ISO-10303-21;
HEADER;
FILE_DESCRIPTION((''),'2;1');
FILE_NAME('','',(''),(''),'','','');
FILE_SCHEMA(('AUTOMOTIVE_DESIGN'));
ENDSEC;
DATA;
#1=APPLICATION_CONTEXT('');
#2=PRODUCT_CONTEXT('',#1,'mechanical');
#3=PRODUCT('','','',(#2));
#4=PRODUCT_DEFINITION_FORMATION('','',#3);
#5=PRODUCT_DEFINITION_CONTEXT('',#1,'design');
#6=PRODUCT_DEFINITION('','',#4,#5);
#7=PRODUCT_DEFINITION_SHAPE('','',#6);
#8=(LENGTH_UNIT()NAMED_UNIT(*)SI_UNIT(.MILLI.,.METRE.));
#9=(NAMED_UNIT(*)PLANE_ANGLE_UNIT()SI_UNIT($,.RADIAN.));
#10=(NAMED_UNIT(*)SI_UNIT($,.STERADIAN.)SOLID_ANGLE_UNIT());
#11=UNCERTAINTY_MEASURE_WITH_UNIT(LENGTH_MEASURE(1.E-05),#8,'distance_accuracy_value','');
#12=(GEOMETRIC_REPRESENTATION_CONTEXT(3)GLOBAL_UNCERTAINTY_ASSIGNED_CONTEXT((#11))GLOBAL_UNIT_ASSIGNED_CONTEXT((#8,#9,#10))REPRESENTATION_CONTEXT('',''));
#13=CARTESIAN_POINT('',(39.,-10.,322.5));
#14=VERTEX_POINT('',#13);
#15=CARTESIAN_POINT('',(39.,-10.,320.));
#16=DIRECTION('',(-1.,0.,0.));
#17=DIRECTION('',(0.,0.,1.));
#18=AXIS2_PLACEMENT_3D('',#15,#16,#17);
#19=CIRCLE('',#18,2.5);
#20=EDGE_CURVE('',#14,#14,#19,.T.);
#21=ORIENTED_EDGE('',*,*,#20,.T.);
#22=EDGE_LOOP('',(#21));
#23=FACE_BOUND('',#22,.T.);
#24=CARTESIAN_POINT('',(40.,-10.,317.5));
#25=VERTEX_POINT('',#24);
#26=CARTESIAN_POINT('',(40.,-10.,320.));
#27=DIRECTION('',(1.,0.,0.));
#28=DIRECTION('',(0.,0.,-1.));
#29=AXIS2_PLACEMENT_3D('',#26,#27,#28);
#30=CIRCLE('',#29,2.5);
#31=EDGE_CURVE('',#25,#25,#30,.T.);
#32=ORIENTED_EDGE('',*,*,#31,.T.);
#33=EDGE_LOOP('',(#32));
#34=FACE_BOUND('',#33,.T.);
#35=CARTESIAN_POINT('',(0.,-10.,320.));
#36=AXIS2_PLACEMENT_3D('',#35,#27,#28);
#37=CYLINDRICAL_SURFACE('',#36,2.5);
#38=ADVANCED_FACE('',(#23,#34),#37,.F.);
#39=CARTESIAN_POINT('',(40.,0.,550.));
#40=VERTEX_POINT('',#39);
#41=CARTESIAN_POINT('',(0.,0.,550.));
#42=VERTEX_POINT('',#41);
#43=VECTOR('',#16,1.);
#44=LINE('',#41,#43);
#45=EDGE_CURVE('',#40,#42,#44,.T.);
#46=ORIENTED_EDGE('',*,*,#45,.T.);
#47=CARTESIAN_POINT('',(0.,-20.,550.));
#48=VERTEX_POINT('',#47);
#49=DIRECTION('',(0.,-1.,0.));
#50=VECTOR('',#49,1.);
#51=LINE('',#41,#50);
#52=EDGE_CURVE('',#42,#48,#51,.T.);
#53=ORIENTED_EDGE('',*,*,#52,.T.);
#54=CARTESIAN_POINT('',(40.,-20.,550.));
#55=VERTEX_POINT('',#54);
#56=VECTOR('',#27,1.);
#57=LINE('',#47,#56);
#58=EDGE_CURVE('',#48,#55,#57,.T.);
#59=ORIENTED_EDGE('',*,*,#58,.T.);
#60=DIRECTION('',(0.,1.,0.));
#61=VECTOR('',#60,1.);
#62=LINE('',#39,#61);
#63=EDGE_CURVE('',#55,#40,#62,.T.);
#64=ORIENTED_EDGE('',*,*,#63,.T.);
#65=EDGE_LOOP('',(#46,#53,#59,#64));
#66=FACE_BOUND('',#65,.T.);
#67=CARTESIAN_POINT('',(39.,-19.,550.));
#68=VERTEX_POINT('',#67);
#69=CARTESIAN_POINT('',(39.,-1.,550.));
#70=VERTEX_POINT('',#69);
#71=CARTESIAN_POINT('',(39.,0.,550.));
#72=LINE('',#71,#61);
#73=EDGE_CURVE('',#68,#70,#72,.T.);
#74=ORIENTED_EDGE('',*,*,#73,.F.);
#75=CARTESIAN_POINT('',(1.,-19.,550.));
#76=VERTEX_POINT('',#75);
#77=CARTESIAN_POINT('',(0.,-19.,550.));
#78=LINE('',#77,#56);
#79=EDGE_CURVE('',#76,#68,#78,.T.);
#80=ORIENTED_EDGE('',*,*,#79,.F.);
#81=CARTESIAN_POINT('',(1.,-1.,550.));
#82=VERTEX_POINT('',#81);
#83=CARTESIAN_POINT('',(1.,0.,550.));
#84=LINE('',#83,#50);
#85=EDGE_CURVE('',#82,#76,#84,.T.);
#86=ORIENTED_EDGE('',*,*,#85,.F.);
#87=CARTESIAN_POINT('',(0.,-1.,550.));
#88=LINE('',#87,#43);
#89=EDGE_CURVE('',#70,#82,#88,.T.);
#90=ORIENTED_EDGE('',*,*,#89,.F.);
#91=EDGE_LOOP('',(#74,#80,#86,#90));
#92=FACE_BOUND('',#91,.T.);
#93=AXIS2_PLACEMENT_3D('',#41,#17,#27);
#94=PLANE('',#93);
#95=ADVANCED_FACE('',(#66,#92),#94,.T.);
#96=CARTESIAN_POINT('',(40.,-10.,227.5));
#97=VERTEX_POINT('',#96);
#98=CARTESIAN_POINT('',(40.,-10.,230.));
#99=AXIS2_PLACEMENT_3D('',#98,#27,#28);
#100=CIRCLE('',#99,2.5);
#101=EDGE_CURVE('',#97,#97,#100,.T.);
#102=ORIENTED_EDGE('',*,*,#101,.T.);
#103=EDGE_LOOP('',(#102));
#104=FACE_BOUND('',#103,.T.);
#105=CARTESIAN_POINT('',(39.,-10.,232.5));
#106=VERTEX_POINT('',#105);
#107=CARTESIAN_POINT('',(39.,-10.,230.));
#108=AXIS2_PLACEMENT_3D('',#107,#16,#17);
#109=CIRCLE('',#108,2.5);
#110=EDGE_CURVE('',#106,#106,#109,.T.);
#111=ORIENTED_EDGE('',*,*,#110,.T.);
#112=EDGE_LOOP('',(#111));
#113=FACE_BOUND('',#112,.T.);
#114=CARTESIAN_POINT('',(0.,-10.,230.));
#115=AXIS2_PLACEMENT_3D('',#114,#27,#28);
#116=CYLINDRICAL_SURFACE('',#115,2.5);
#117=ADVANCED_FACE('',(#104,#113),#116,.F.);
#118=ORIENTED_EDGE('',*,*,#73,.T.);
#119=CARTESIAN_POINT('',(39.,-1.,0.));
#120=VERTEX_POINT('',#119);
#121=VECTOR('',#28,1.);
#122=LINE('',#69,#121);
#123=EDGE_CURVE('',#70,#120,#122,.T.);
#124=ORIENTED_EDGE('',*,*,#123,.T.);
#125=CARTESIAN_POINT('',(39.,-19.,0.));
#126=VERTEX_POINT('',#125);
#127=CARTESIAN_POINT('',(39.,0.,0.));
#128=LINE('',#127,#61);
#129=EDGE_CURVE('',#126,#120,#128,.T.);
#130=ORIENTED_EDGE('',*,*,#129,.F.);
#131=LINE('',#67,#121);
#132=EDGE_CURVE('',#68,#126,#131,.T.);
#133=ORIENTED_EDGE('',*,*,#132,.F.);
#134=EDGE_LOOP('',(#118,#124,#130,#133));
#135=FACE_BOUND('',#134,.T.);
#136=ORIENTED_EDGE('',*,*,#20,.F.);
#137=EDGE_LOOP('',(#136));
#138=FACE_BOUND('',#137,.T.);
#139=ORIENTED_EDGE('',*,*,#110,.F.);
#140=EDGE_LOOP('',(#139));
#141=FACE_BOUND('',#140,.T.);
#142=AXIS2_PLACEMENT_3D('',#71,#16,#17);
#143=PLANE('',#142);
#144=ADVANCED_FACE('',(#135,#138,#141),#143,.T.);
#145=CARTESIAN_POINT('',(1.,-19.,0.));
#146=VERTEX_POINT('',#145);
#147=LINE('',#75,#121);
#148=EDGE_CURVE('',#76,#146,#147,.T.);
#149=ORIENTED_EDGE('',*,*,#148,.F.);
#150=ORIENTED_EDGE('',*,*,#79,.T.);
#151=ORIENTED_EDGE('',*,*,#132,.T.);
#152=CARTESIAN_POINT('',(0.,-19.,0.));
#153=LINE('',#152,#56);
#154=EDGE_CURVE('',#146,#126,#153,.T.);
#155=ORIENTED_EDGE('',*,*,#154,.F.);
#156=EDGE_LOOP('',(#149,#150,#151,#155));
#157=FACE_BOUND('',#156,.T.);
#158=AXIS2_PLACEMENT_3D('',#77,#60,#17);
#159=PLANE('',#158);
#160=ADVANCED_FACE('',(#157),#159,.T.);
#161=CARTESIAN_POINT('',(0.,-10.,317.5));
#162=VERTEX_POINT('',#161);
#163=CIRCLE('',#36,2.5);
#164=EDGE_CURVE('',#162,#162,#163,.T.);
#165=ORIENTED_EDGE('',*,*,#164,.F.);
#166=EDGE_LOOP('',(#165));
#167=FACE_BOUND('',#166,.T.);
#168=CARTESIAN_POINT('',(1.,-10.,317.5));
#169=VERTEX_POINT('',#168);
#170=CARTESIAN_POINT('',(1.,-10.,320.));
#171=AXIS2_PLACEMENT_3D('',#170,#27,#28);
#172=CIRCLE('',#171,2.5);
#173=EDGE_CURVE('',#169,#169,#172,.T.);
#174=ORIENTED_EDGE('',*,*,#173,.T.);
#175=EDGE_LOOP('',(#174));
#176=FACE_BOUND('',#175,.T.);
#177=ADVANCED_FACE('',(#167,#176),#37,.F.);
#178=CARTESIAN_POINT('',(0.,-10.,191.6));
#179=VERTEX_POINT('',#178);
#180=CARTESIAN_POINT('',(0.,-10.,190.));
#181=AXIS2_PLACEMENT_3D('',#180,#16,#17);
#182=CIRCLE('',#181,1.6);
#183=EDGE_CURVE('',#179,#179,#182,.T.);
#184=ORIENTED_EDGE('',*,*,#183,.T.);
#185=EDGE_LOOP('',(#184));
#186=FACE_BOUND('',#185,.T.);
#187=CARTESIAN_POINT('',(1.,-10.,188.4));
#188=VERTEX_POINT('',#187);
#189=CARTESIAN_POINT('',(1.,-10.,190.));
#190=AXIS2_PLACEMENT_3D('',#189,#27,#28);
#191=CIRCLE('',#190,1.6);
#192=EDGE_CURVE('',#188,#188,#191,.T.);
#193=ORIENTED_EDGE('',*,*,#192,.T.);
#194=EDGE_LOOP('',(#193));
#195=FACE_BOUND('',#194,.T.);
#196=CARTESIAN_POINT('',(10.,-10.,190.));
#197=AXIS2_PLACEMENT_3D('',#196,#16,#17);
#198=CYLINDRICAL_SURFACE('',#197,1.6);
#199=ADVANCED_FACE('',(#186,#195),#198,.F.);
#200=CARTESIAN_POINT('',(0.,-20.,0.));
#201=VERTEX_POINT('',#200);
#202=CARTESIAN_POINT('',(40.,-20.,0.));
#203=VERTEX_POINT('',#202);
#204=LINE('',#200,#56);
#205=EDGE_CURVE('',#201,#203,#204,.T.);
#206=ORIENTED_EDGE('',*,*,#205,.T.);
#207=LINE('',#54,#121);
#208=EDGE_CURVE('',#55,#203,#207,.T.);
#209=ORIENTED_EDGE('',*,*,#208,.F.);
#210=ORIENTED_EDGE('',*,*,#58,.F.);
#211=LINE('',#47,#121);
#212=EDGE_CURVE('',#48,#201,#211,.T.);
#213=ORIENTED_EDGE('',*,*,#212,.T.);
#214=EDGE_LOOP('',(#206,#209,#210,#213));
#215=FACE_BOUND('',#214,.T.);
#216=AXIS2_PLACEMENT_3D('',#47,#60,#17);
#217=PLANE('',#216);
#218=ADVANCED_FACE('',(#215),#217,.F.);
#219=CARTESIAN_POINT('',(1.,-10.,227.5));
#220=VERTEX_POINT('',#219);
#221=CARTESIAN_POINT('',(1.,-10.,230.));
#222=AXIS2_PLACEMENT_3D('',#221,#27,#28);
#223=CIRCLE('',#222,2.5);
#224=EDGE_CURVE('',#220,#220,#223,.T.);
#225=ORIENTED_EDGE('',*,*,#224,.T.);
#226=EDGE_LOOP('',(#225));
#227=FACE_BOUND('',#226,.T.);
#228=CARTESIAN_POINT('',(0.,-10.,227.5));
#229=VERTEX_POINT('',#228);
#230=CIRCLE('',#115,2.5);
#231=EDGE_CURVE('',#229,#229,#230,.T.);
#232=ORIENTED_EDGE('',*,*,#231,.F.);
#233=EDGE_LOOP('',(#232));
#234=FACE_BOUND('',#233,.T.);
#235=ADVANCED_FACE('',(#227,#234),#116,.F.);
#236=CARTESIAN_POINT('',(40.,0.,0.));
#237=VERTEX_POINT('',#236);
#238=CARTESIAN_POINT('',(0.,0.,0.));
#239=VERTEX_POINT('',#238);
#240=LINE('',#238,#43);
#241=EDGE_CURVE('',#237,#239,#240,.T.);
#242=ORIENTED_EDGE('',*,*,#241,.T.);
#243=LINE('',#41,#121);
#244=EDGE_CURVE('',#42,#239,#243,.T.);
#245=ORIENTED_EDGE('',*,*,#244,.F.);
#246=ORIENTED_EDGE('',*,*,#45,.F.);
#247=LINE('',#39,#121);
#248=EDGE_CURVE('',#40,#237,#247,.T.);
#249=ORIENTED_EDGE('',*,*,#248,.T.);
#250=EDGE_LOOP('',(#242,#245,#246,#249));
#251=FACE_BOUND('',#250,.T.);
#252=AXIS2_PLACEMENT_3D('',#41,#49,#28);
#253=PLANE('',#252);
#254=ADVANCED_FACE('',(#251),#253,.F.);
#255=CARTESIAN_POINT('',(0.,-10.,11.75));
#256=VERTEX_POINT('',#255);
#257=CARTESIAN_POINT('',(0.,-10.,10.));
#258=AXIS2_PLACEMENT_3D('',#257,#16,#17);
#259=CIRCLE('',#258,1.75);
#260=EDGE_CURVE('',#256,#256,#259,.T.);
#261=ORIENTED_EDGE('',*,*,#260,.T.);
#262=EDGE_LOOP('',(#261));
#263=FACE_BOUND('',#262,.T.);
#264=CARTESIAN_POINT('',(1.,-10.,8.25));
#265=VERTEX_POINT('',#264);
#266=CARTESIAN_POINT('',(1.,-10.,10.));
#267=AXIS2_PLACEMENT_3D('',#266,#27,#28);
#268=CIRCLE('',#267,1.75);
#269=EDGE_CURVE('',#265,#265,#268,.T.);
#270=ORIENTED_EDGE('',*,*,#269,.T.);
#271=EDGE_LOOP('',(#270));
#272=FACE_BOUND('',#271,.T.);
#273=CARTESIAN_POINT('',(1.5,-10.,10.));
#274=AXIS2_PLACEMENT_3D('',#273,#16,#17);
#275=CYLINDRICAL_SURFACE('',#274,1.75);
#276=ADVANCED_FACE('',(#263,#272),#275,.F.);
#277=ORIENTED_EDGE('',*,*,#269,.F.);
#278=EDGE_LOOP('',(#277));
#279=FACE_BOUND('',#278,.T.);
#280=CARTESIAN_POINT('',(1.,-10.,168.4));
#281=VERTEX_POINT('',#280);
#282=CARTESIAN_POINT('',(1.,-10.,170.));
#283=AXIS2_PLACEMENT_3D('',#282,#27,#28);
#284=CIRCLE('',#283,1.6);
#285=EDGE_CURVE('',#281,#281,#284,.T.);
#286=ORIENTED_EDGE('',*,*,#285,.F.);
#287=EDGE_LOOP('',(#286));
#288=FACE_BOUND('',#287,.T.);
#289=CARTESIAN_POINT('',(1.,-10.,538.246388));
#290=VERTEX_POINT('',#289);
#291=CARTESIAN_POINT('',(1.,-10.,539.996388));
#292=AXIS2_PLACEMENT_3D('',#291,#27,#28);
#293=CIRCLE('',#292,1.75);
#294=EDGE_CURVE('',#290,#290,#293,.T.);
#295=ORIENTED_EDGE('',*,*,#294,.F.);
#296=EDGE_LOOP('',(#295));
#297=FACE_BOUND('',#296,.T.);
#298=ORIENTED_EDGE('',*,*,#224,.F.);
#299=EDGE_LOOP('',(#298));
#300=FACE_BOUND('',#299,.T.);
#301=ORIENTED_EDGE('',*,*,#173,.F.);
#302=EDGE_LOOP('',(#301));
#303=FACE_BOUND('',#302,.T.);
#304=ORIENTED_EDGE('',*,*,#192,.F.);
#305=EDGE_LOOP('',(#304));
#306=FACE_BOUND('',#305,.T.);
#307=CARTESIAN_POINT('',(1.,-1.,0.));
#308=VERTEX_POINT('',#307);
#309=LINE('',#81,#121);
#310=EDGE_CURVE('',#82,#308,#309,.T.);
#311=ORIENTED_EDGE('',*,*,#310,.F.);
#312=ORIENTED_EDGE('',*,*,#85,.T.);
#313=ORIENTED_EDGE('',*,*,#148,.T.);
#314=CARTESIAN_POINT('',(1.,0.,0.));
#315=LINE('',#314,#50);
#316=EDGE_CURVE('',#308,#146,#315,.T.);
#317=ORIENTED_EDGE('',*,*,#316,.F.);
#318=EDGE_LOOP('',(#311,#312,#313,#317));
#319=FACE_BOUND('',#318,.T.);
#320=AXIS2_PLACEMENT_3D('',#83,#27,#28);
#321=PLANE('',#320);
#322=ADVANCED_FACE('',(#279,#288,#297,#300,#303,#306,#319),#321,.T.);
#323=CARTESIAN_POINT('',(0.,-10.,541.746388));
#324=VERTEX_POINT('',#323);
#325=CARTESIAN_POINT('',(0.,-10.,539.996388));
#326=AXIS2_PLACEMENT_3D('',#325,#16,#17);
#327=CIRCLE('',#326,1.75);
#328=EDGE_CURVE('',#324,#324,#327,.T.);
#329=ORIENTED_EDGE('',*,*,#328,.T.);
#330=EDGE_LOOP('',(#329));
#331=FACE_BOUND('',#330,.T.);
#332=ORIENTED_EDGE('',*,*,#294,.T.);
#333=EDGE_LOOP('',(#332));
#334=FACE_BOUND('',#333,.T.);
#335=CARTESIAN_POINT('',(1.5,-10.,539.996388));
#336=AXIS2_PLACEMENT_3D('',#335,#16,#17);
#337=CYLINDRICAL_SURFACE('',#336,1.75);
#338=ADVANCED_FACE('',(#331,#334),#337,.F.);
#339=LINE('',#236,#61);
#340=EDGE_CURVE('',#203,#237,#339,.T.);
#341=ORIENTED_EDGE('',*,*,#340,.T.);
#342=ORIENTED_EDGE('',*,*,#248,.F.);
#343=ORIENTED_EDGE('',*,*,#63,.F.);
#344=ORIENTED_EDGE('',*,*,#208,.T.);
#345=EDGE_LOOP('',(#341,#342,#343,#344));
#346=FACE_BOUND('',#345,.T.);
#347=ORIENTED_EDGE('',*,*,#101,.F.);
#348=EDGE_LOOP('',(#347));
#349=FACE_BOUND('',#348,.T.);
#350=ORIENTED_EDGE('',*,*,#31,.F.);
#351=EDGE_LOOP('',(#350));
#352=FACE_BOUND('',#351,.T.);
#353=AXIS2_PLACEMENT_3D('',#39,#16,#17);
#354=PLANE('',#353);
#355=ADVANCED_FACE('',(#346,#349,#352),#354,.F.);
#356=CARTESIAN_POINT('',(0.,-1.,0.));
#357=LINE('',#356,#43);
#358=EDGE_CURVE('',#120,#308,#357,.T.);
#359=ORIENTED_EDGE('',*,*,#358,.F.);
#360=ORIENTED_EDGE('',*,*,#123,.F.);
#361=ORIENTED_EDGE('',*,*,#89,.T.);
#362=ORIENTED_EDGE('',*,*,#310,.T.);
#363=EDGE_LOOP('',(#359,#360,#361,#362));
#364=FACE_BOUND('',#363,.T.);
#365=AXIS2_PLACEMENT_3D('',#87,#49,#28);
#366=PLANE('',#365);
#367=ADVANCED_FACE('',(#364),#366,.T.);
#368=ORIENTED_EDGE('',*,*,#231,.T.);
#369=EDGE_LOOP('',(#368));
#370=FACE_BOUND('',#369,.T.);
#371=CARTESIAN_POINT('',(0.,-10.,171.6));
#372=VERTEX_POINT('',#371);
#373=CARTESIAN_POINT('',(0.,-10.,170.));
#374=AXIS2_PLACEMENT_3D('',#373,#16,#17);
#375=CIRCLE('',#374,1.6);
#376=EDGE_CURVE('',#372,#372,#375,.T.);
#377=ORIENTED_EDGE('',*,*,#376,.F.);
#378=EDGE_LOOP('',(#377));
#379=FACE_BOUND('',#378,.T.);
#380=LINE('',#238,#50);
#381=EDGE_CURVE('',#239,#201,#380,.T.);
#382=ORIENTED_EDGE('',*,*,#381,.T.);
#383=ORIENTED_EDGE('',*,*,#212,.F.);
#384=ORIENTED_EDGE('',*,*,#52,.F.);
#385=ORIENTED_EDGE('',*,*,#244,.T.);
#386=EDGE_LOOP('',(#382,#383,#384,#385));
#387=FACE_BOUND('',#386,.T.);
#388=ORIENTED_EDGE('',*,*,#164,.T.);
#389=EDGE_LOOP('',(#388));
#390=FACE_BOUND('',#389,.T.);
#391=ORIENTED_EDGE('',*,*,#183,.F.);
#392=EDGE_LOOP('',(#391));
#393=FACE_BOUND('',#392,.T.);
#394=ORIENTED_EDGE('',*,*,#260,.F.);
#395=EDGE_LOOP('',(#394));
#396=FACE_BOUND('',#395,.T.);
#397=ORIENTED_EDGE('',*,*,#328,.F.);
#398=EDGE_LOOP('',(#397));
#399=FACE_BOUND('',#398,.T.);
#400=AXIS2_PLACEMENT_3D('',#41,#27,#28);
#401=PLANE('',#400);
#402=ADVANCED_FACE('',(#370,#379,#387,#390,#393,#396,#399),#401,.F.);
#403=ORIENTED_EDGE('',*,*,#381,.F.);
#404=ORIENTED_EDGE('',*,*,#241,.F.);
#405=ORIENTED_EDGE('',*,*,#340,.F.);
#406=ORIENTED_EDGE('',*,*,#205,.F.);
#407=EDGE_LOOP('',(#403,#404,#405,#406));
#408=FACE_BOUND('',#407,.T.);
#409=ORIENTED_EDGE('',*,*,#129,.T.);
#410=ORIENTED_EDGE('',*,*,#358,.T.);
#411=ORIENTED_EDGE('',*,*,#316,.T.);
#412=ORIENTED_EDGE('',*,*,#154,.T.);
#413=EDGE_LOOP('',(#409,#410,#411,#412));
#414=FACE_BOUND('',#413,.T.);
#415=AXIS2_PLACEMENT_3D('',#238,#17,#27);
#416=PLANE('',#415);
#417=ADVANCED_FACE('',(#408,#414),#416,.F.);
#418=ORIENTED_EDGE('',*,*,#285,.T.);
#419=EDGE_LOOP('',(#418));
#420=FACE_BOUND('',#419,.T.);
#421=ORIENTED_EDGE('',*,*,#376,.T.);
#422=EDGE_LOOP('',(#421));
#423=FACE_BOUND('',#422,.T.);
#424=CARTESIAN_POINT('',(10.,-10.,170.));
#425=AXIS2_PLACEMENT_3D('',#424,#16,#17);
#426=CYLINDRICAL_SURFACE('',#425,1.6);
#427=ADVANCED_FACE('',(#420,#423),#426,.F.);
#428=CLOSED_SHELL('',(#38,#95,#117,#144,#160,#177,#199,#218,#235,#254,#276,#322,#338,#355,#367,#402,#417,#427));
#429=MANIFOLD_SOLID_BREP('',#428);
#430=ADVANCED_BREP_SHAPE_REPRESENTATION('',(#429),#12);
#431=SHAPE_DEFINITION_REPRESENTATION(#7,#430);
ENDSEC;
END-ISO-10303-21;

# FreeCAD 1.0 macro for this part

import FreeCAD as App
import Part
import Sketcher
from FreeCAD import Vector
Q = App.Units.Quantity

doc = App.newDocument("Part")
body = doc.addObject("PartDesign::Body", "Body")

# Sketch on XY plane
sketch1 = doc.addObject("Sketcher::SketchObject", "Sketch")
body.addObject(sketch1)
sketch1.AttachmentSupport = (doc.XY_Plane, [""])
sketch1.MapMode = "FlatFace"
sketch1.addGeometry([
    Part.LineSegment(Vector(0, 0, 0), Vector(0, -20, 0)),  # 0
    Part.LineSegment(Vector(0, -20, 0), Vector(40, -20, 0)),  # 1
    Part.LineSegment(Vector(40, -20, 0), Vector(40, 0, 0)),  # 2
    Part.LineSegment(Vector(40, 0, 0), Vector(0, 0, 0)),  # 3
    Part.LineSegment(Vector(39, -19, 0), Vector(1, -19, 0)),  # 4
    Part.LineSegment(Vector(1, -19, 0), Vector(1, -1, 0)),  # 5
    Part.LineSegment(Vector(1, -1, 0), Vector(39, -1, 0)),  # 6
    Part.LineSegment(Vector(39, -1, 0), Vector(39, -19, 0)),  # 7
], False)
sketch1.addConstraint([
    Sketcher.Constraint("Coincident", 0, 2, 1, 1),
    Sketcher.Constraint("Coincident", 1, 2, 2, 1),
    Sketcher.Constraint("Coincident", 2, 2, 3, 1),
    Sketcher.Constraint("Coincident", 3, 2, 0, 1),
    Sketcher.Constraint("Coincident", 4, 2, 5, 1),
    Sketcher.Constraint("Coincident", 5, 2, 6, 1),
    Sketcher.Constraint("Coincident", 6, 2, 7, 1),
    Sketcher.Constraint("Coincident", 7, 2, 4, 1),
    Sketcher.Constraint("Vertical", 0),
    Sketcher.Constraint("Horizontal", 1),
    Sketcher.Constraint("Vertical", 2),
    Sketcher.Constraint("Horizontal", 3),
    Sketcher.Constraint("Horizontal", 4),
    Sketcher.Constraint("Vertical", 5),
    Sketcher.Constraint("Horizontal", 6),
    Sketcher.Constraint("Vertical", 7),
    Sketcher.Constraint("Coincident", 3, 2, -1, 1),
    Sketcher.Constraint("DistanceX", 1, 1, 1, 2, Q("40 mm")),
    Sketcher.Constraint("DistanceX", 4, 2, 4, 1, Q("38 mm")),
    Sketcher.Constraint("DistanceY", 0, 2, 0, 1, Q("20 mm")),
    Sketcher.Constraint("DistanceY", 5, 1, 5, 2, Q("18 mm")),
    Sketcher.Constraint("DistanceX", -1, 1, 4, 2, Q("1 mm")),
    Sketcher.Constraint("DistanceY", 4, 2, -1, 1, Q("19 mm")),
])
pad1 = doc.addObject("PartDesign::Pad", "Pad")
body.addObject(pad1)
pad1.Profile = sketch1
pad1.Length = 550

# Sketch on YZ plane
sketch2 = doc.addObject("Sketcher::SketchObject", "Sketch001")
body.addObject(sketch2)
sketch2.AttachmentSupport = (doc.YZ_Plane, [""])
sketch2.MapMode = "FlatFace"
sketch2.addGeometry([
    Part.Circle(Vector(-10, 540, 0), Vector(0, 0, 1), 1.8),
    Part.Circle(Vector(-10, 10, 0), Vector(0, 0, 1), 1.8),
], False)
sketch2.addConstraint([
    Sketcher.Constraint("Equal", 0, 1),
    Sketcher.Constraint("Vertical", 0, 3, 1, 3),
    Sketcher.Constraint("Diameter", 0, Q("3.5 mm")),
    Sketcher.Constraint("DistanceX", 0, 3, -1, 1, Q("10 mm")),
    Sketcher.Constraint("DistanceY", -1, 1, 1, 3, Q("10 mm")),
    Sketcher.Constraint("DistanceY", -1, 1, 0, 3, Q("539.996388 mm")),
])
pocket1 = doc.addObject("PartDesign::Pocket", "Pocket")
body.addObject(pocket1)
pocket1.Profile = sketch2
pocket1.Length = 1.5
pocket1.Reversed = True

# Sketch on YZ plane
sketch3 = doc.addObject("Sketcher::SketchObject", "Sketch002")
body.addObject(sketch3)
sketch3.AttachmentSupport = (doc.YZ_Plane, [""])
sketch3.MapMode = "FlatFace"
sketch3.AttachmentOffset = App.Placement(Vector(0, 0, 40), App.Rotation())
sketch3.addGeometry([
    Part.Circle(Vector(-10, 320, 0), Vector(0, 0, 1), 2.5),
    Part.Circle(Vector(-10, 230, 0), Vector(0, 0, 1), 2.5),
], False)
sketch3.addConstraint([
    Sketcher.Constraint("Equal", 0, 1),
    Sketcher.Constraint("Vertical", 0, 3, 1, 3),
    Sketcher.Constraint("Diameter", 0, Q("5 mm")),
    Sketcher.Constraint("DistanceX", 0, 3, -1, 1, Q("10 mm")),
    Sketcher.Constraint("DistanceY", -1, 1, 0, 3, Q("320 mm")),
    Sketcher.Constraint("DistanceY", -1, 1, 1, 3, Q("230 mm")),
])
pocket2 = doc.addObject("PartDesign::Pocket", "Pocket001")
body.addObject(pocket2)
pocket2.Profile = sketch3
pocket2.Type = "ThroughAll"

# Sketch on YZ plane
sketch4 = doc.addObject("Sketcher::SketchObject", "Sketch003")
body.addObject(sketch4)
sketch4.AttachmentSupport = (doc.YZ_Plane, [""])
sketch4.MapMode = "FlatFace"
sketch4.addGeometry([
    Part.Circle(Vector(-10, 190, 0), Vector(0, 0, 1), 1.6),
    Part.Circle(Vector(-10, 170, 0), Vector(0, 0, 1), 1.6),
], False)
sketch4.addConstraint([
    Sketcher.Constraint("Equal", 0, 1),
    Sketcher.Constraint("Vertical", 0, 3, 1, 3),
    Sketcher.Constraint("Diameter", 0, Q("3.2 mm")),
    Sketcher.Constraint("DistanceX", 0, 3, -1, 1, Q("10 mm")),
    Sketcher.Constraint("DistanceY", -1, 1, 0, 3, Q("190 mm")),
    Sketcher.Constraint("DistanceY", -1, 1, 1, 3, Q("170 mm")),
])
pocket3 = doc.addObject("PartDesign::Pocket", "Pocket002")
body.addObject(pocket3)
pocket3.Profile = sketch4
pocket3.Length = 10
pocket3.Reversed = True

doc.recompute()
